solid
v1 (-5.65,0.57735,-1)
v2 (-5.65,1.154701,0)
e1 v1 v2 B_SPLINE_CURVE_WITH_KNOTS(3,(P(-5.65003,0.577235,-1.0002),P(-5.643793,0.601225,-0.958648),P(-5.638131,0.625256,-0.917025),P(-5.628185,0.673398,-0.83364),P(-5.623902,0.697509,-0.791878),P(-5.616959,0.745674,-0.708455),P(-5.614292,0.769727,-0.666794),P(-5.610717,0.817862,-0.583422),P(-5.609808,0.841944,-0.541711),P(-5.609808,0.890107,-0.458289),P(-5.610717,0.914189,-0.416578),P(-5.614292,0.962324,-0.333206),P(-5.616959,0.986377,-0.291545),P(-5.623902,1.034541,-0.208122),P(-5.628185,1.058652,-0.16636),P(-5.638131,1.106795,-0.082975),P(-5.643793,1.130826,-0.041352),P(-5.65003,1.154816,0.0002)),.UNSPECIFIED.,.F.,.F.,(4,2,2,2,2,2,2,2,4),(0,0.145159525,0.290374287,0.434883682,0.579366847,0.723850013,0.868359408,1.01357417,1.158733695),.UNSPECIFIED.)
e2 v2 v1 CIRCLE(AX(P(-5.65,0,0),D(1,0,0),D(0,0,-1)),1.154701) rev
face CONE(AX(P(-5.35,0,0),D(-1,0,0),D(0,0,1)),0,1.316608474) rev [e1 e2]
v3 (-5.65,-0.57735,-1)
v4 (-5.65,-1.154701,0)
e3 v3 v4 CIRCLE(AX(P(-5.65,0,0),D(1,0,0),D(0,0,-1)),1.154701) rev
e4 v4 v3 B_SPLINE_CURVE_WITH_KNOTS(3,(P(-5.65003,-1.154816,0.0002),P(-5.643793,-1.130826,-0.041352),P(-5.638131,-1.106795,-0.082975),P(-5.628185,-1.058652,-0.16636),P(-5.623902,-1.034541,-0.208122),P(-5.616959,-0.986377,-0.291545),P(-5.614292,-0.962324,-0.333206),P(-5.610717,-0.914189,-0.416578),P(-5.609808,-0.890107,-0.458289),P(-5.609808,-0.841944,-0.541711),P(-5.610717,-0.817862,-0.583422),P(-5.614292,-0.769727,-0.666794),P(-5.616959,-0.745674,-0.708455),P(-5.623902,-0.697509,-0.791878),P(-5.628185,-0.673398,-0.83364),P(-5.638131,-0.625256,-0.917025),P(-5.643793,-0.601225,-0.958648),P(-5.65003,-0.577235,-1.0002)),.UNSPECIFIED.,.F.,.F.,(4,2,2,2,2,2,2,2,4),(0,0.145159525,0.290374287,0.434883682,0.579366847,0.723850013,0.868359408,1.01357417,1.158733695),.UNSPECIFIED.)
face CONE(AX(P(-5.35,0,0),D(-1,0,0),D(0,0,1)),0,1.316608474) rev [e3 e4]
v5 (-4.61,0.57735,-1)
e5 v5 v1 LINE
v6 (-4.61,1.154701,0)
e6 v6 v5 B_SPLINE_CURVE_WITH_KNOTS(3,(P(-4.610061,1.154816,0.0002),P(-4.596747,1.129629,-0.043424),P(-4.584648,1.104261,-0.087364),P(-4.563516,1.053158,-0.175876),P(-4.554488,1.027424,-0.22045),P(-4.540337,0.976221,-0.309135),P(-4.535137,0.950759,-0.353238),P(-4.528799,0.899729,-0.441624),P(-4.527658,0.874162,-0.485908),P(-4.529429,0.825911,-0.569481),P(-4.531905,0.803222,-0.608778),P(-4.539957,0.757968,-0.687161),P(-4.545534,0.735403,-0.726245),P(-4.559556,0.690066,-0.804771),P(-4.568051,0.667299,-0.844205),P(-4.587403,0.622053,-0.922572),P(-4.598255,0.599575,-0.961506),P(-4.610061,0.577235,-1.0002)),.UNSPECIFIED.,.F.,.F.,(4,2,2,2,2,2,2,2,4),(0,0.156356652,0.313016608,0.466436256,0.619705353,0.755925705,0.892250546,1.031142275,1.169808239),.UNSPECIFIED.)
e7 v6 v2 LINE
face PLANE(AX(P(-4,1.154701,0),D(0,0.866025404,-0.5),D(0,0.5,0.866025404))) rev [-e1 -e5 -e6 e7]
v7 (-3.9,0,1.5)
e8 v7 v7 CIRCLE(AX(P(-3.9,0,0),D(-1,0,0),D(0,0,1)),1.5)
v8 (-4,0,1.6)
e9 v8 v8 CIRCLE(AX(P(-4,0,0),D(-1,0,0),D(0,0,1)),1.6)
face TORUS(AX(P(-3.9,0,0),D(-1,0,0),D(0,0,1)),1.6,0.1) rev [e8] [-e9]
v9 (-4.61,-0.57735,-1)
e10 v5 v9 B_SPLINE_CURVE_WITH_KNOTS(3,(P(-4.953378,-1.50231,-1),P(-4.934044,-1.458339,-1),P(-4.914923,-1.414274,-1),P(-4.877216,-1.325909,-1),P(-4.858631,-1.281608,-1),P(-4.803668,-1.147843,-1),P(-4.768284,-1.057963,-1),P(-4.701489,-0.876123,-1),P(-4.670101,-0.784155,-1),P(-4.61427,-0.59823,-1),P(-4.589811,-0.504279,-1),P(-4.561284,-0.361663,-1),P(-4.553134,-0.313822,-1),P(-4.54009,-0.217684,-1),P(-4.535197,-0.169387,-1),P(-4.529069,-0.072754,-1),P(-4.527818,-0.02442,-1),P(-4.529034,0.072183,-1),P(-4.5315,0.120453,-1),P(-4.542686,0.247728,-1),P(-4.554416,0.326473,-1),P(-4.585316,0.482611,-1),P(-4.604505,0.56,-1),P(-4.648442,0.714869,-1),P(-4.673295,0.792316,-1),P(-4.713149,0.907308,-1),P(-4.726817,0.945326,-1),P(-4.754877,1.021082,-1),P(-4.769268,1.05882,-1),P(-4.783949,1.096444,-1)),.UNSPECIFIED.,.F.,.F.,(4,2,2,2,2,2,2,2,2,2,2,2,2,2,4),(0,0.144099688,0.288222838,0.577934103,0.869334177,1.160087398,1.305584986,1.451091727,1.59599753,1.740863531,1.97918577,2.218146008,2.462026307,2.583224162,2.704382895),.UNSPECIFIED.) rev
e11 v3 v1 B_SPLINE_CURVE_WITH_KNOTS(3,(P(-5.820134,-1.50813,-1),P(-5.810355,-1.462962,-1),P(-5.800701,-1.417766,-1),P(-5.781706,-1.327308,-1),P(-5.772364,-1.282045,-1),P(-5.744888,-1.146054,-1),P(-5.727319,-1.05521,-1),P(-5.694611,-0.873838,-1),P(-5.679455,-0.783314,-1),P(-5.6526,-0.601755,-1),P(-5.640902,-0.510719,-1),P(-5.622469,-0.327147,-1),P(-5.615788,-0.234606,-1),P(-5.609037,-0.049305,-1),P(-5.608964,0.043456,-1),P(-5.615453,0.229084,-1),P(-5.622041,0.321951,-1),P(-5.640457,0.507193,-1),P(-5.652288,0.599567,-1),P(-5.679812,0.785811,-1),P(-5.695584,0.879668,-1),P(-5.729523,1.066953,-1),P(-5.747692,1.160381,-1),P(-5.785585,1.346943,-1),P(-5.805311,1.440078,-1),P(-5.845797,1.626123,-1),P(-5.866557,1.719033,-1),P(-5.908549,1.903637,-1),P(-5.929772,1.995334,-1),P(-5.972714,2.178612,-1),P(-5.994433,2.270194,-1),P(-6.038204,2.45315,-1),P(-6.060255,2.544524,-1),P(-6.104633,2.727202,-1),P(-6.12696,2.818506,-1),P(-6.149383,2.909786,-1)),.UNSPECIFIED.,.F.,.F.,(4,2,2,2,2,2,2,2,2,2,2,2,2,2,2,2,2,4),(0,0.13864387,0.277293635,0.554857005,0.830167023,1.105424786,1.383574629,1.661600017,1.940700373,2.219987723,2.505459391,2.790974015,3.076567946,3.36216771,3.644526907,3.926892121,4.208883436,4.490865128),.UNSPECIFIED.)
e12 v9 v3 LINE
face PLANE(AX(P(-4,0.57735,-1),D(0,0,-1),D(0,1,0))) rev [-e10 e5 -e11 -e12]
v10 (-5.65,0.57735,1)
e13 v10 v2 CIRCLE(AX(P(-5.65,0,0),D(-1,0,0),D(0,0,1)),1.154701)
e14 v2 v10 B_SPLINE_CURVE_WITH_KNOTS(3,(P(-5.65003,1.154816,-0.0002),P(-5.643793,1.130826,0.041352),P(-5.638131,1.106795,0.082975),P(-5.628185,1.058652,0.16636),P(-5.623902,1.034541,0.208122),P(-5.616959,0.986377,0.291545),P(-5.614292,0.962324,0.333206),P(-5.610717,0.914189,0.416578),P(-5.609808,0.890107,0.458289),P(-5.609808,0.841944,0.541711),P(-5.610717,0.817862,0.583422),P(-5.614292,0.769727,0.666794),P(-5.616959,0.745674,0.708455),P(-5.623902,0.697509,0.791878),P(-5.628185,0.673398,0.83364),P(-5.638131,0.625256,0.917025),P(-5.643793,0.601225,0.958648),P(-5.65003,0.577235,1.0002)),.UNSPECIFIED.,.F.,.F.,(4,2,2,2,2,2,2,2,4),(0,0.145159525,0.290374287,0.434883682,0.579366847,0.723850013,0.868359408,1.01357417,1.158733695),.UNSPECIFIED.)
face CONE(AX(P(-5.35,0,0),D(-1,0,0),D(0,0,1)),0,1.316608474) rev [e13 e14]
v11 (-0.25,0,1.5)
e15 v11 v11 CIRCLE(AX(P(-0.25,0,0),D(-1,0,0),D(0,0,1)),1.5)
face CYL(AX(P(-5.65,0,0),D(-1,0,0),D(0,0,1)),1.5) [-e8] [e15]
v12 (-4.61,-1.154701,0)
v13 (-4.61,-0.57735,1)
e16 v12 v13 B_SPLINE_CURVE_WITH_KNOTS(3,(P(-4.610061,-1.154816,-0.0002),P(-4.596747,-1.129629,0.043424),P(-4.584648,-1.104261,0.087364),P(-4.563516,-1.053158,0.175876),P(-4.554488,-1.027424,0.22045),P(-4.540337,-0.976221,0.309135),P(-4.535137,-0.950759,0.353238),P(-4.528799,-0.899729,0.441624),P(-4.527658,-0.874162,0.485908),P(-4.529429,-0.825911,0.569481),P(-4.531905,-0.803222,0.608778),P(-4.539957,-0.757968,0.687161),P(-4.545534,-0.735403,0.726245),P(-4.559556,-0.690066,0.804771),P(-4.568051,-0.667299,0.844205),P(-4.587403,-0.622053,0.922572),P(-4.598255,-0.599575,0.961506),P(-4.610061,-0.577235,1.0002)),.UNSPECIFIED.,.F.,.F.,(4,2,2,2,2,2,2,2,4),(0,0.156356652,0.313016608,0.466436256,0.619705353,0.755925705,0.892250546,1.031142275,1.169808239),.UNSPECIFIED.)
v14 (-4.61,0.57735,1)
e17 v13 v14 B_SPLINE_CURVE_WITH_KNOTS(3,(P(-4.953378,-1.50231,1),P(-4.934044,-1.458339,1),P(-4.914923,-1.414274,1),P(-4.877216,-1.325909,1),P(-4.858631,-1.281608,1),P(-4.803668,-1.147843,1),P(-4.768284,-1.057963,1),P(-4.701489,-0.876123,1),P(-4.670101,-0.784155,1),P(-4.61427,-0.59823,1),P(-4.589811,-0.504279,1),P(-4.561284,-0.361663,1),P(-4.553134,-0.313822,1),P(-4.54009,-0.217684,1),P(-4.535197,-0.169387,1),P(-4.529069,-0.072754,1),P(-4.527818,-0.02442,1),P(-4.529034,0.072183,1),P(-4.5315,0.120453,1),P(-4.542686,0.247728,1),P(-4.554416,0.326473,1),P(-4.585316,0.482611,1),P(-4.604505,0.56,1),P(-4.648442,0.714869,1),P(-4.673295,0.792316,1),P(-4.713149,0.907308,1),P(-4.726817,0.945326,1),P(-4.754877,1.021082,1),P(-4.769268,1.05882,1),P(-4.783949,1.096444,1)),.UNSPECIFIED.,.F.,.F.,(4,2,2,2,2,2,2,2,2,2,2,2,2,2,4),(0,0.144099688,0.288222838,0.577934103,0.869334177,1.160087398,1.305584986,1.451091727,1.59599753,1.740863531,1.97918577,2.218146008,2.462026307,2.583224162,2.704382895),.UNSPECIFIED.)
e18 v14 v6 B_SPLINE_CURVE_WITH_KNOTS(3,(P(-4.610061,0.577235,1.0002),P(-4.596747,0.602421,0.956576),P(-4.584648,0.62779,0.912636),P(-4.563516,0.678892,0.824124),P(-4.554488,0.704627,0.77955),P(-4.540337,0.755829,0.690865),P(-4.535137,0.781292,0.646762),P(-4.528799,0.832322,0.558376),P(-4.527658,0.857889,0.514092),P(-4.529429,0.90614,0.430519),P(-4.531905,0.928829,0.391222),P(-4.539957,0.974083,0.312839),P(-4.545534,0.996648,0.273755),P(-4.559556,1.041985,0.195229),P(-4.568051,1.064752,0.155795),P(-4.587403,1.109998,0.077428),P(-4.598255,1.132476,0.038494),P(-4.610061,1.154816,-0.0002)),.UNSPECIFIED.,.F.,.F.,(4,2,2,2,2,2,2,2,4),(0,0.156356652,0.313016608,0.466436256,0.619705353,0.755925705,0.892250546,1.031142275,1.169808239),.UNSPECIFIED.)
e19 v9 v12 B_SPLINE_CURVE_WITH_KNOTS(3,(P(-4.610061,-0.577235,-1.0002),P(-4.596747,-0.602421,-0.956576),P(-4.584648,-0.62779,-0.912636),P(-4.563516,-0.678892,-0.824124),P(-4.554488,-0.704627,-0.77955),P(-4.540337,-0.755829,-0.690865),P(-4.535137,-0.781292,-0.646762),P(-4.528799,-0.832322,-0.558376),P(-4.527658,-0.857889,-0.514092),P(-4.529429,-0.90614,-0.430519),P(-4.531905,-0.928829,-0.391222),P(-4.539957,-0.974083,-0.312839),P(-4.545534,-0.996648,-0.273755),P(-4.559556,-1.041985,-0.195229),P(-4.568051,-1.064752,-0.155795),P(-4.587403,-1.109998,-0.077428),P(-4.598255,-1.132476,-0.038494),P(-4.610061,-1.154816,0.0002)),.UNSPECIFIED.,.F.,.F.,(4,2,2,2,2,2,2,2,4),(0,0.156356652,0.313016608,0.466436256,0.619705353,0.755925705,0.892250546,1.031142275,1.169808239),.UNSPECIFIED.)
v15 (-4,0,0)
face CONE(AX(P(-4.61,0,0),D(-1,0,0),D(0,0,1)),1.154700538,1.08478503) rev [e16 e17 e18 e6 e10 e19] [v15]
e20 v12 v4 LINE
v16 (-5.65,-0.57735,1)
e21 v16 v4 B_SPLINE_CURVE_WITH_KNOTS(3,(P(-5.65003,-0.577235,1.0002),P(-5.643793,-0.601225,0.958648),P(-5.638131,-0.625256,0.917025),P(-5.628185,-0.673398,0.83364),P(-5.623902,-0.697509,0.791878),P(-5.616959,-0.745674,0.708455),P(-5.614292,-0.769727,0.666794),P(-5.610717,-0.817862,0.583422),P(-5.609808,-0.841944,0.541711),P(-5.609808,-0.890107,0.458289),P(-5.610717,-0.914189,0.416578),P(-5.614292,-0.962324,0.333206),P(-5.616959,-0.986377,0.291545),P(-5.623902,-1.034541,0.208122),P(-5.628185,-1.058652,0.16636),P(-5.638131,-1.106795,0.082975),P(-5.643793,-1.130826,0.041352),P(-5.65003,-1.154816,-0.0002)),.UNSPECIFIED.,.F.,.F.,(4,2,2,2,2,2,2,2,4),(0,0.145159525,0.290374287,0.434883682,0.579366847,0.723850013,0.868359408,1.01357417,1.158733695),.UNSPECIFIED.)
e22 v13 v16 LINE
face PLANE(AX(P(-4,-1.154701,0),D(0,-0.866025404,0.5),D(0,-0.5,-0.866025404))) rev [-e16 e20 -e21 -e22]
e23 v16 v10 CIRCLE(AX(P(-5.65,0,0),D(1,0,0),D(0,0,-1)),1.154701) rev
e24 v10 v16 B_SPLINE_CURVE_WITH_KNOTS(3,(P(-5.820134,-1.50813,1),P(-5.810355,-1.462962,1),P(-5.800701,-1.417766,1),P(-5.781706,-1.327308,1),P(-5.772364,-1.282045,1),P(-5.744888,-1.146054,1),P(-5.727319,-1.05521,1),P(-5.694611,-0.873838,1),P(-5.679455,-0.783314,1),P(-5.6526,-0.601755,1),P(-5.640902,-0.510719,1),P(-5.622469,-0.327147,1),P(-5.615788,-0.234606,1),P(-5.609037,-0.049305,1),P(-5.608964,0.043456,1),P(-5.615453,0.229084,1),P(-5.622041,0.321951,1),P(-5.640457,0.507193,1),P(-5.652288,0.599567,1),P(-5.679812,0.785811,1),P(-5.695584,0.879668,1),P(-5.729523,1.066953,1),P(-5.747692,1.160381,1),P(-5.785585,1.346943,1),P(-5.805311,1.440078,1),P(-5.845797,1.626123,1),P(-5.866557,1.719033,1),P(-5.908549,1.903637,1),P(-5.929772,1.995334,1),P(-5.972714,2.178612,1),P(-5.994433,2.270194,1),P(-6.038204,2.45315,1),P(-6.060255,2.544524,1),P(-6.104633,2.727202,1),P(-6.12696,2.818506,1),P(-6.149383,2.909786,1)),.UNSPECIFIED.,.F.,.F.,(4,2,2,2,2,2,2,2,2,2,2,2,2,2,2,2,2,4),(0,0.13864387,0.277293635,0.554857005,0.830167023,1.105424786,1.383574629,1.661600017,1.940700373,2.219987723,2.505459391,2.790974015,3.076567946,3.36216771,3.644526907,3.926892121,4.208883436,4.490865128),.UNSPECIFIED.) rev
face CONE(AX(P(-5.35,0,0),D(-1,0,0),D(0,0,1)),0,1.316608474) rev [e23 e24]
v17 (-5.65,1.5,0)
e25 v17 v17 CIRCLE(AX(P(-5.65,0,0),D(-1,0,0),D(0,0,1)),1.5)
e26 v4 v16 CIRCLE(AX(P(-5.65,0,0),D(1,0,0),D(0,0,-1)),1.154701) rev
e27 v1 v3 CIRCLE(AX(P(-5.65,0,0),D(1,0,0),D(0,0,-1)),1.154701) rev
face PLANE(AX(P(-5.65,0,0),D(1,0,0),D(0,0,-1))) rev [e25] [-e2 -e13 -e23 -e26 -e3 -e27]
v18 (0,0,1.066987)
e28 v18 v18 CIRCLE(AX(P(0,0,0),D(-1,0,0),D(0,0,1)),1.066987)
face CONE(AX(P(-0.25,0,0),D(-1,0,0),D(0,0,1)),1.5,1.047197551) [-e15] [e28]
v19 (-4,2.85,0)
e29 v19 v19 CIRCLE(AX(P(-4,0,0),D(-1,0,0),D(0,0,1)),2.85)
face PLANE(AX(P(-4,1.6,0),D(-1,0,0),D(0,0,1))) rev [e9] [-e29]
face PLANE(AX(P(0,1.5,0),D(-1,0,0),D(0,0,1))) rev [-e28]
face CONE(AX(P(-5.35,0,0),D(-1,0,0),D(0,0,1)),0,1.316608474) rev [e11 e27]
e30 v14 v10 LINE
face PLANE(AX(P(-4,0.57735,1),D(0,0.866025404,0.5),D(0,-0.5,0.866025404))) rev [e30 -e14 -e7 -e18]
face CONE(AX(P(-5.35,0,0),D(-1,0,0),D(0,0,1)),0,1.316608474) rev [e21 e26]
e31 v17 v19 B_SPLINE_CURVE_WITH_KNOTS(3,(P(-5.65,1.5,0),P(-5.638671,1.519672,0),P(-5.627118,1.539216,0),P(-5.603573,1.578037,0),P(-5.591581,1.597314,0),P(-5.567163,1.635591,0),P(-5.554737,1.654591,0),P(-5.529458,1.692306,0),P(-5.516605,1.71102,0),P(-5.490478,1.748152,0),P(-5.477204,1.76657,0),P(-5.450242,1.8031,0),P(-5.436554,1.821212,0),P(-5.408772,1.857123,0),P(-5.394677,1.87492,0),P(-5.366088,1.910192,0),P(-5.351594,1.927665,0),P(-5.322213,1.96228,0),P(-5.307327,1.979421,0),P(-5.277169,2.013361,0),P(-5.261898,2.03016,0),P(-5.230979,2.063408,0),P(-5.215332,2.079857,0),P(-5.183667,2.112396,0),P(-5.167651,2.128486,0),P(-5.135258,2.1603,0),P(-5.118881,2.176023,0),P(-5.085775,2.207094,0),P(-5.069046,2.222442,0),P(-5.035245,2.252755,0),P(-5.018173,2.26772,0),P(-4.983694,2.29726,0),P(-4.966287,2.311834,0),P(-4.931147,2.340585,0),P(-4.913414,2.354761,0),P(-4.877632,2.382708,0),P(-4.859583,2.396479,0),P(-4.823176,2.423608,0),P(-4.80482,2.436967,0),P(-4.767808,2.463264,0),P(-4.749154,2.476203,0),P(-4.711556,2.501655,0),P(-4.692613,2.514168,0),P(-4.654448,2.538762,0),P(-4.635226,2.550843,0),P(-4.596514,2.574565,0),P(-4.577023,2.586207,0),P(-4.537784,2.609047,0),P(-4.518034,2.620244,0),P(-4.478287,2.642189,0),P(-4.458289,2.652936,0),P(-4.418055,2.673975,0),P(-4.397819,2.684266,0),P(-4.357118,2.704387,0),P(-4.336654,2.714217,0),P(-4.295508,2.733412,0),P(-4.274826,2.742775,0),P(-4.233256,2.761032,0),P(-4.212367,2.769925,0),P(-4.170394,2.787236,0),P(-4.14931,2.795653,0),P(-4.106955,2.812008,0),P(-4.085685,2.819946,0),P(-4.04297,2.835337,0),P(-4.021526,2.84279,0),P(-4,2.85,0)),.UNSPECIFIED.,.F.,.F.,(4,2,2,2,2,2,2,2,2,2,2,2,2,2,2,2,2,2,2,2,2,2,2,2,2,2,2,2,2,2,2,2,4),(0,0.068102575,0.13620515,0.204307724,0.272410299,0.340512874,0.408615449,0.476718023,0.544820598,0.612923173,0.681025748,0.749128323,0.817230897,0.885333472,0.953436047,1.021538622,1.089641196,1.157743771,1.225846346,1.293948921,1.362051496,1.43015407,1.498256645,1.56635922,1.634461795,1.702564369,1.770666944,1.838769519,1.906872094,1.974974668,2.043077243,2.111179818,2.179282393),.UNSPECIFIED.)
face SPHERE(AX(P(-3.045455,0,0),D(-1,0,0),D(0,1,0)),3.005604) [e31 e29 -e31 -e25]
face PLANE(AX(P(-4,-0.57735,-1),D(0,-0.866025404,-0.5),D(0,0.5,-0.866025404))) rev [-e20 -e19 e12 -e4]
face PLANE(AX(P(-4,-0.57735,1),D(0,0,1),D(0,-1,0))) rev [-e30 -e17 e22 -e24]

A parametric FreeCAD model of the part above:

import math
import FreeCAD as App
import Part
import Sketcher
from FreeCAD import Vector
Q = App.Units.Quantity


def add_polygon(sketch, points):
    """Adds a closed chain of lines whose ends are joined by coincident constraints."""
    first, n = sketch.GeometryCount, len(points)
    for a, b in zip(points, points[1:] + points[:1]):
        sketch.addGeometry(Part.LineSegment(App.Vector(*a, 0), App.Vector(*b, 0)), False)
    for i in range(n):
        sketch.addConstraint(Sketcher.Constraint("Coincident", first + i, 2, first + (i + 1) % n, 1))

doc = App.newDocument("Part")
params = doc.addObject("Spreadsheet::Sheet", "Params")
for row, (alias, value) in enumerate([
    ("sketch1_radius", "0.1 mm"),
    ("sketch1_width", "3.9 mm"),
    ("sketch1_height", "1.5 mm"),
    ("sketch1_width2", "5.65 mm"),
    ("sketch1_height2", "1.25 mm"),
    ("revolution_angle", "360 deg"),
    ("pocket1_length", "1.65 mm"),
    ("sketch3_width", "0.3 mm"),
    ("sketch3_width2", "0.91 mm"),
    ("revolution2_angle", "360 deg"),
    ("sketch4_width", "0.3 mm"),
    ("groove_angle", "360 deg"),
    ("sketch5_width", "0.5 mm"),
    ("groove2_angle", "360 deg"),
], start=1):
    params.set(f"A{row}", alias)
    params.set(f"B{row}", "=" + value)
    params.setAlias(f"B{row}", alias)

body = doc.addObject("PartDesign::Body", "Body")

# Sketch on XY plane
sketch1 = body.newObject("Sketcher::SketchObject", "Sketch")
sketch1.AttachmentSupport = (doc.getObject("XY_Plane"), [""])
sketch1.MapMode = "FlatFace"
sketch1.addGeometry([
    Part.LineSegment(Vector(0, 1.5, 0), Vector(-3.9, 1.5, 0)),  # 0
    Part.ArcOfCircle(Part.Circle(Vector(-3.9, 1.6, 0), Vector(0, 0, 1), 0.1), math.radians(180), math.radians(270)),  # 1
    Part.LineSegment(Vector(-4, 1.6, 0), Vector(-4, 2.85, 0)),  # 2
    Part.ArcOfCircle(Part.Circle(Vector(-3.05, 0, 0), Vector(0, 0, 1), 3.01), math.radians(109), math.radians(150)),  # 3
    Part.LineSegment(Vector(-5.65, 1.5, 0), Vector(-5.65, 0, 0)),  # 4
    Part.LineSegment(Vector(-5.65, 0, 0), Vector(0, 0, 0)),  # 5
    Part.LineSegment(Vector(0, 0, 0), Vector(0, 1.5, 0)),  # 6
], False)
sketch1.addConstraint([
    Sketcher.Constraint("Tangent", 0, 2, 1, 2),
    Sketcher.Constraint("Tangent", 1, 1, 2, 1),
    Sketcher.Constraint("Coincident", 2, 2, 3, 1),
    Sketcher.Constraint("Coincident", 3, 2, 4, 1),
    Sketcher.Constraint("Coincident", 4, 2, 5, 1),
    Sketcher.Constraint("Coincident", 5, 2, 6, 1),
    Sketcher.Constraint("Coincident", 6, 2, 0, 1),
    Sketcher.Constraint("Horizontal", 0),
    Sketcher.Constraint("Vertical", 2),
    Sketcher.Constraint("Vertical", 4),
    Sketcher.Constraint("Horizontal", 5),
    Sketcher.Constraint("Vertical", 6),
    Sketcher.Constraint("Coincident", 5, 2, -1, 1),
    Sketcher.Constraint("PointOnObject", 3, 3, -1),
    Sketcher.Constraint("Horizontal", 0, 2, 3, 2),
    Sketcher.Constraint("Radius", 1, 0.1),
    Sketcher.Constraint("DistanceX", 0, 2, 0, 1, 3.9),
    Sketcher.Constraint("DistanceY", 4, 2, 4, 1, 1.5),
    Sketcher.Constraint("DistanceX", 5, 1, 5, 2, 5.65),
    Sketcher.Constraint("DistanceY", 2, 1, 2, 2, 1.25),
])
sketch1.setExpression("Constraints[15]", "Params.sketch1_radius")
sketch1.setExpression("Constraints[16]", "Params.sketch1_width")
sketch1.setExpression("Constraints[17]", "Params.sketch1_height")
sketch1.setExpression("Constraints[18]", "Params.sketch1_width2")
sketch1.setExpression("Constraints[19]", "Params.sketch1_height2")
revolution = body.newObject("PartDesign::Revolution", "Revolution")
revolution.Profile = sketch1
revolution.ReferenceAxis = (sketch1, ["H_Axis"])
revolution.setExpression("Angle", "Params.revolution_angle")

# Sketch on YZ plane
sketch2 = body.newObject("Sketcher::SketchObject", "Sketch001")
sketch2.AttachmentSupport = (doc.getObject("YZ_Plane"), [""])
sketch2.MapMode = "FlatFace"
sketch2.AttachmentOffset = App.Placement(Vector(0, 0, -5.65), App.Rotation())
add_polygon(sketch2, [(1.2, 0), (0.6, -1), (-0.6, -1), (-1.2, 0), (-0.6, 1), (0.6, 1)])  # lines 0-5
sketch2.addConstraint([
    Sketcher.Constraint("Horizontal", 1),
    Sketcher.Constraint("Horizontal", 4),
    Sketcher.Constraint("Symmetric", 0, 2, 3, 2, -1, 1),
    Sketcher.Constraint("Symmetric", 2, 2, 5, 2, -1, 1),
    Sketcher.Constraint("PointOnObject", 2, 2, -1),
    Sketcher.Constraint("Parallel", 2, 5),
    Sketcher.Constraint("Vertical", 1, 2, 3, 2),
    Sketcher.Constraint("Angle", 0, Q("-120 deg")),
    Sketcher.Constraint("DistanceY", 0, 2, -1, 1, 1.0),
    Sketcher.Constraint("DistanceX", 1, 2, 1, 1, 1.154701),
])
pocket1 = body.newObject("PartDesign::Pocket", "Pocket")
pocket1.Profile = sketch2
pocket1.setExpression("Length", "Params.pocket1_length")
pocket1.Reversed = True

# Sketch on XY plane
sketch3 = body.newObject("Sketcher::SketchObject", "Sketch002")
sketch3.AttachmentSupport = (doc.getObject("XY_Plane"), [""])
sketch3.MapMode = "FlatFace"
add_polygon(sketch3, [(-4.61, 1.15), (-4, 0), (-3.7, 0), (-3.7, 1.15)])  # lines 0-3
sketch3.addConstraint([
    Sketcher.Constraint("Horizontal", 1),
    Sketcher.Constraint("Vertical", 2),
    Sketcher.Constraint("Horizontal", 3),
    Sketcher.Constraint("PointOnObject", 0, 2, -1),
    Sketcher.Constraint("DistanceX", 1, 1, 1, 2, 0.3),
    Sketcher.Constraint("DistanceX", 0, 2, -1, 1, 4.0),
    Sketcher.Constraint("DistanceX", 3, 2, 3, 1, 0.91),
    Sketcher.Constraint("DistanceY", 2, 1, 2, 2, 1.154701),
])
sketch3.setExpression("Constraints[8]", "Params.sketch3_width")
sketch3.setExpression("Constraints[10]", "Params.sketch3_width2")
revolution2 = body.newObject("PartDesign::Revolution", "Revolution001")
revolution2.Profile = sketch3
revolution2.ReferenceAxis = (sketch3, ["H_Axis"])
revolution2.setExpression("Angle", "Params.revolution2_angle")

# Sketch on XY plane
sketch4 = body.newObject("Sketcher::SketchObject", "Sketch003")
sketch4.AttachmentSupport = (doc.getObject("XY_Plane"), [""])
sketch4.MapMode = "FlatFace"
add_polygon(sketch4, [(-5.35, 0), (-5.65, 1.15), (-5.65, 0)])  # lines 0-2
sketch4.addConstraint([
    Sketcher.Constraint("Vertical", 1),
    Sketcher.Constraint("Horizontal", 2),
    Sketcher.Constraint("PointOnObject", 1, 2, -1),
    Sketcher.Constraint("DistanceX", 2, 1, 2, 2, 0.3),
    Sketcher.Constraint("DistanceX", 0, 2, -1, 1, 5.65),
    Sketcher.Constraint("DistanceY", 1, 2, 1, 1, 1.154701),
])
sketch4.setExpression("Constraints[6]", "Params.sketch4_width")
groove = body.newObject("PartDesign::Groove", "Groove")
groove.Profile = sketch4
groove.ReferenceAxis = (sketch4, ["H_Axis"])
groove.setExpression("Angle", "Params.groove_angle")

# Sketch on XY plane
sketch5 = body.newObject("Sketcher::SketchObject", "Sketch004")
sketch5.AttachmentSupport = (doc.getObject("XY_Plane"), [""])
sketch5.MapMode = "FlatFace"
add_polygon(sketch5, [(-0.2, 1.5), (0, 1.1), (0.2, 1.5)])  # lines 0-2
sketch5.addConstraint([
    Sketcher.Constraint("Horizontal", 2),
    Sketcher.Constraint("PointOnObject", 0, 2, -2),
    Sketcher.Constraint("Equal", 0, 1),
    Sketcher.Constraint("Angle", 0, Q("-60 deg")),
    Sketcher.Constraint("DistanceX", 2, 2, 2, 1, 0.5),
    Sketcher.Constraint("DistanceY", -1, 1, 1, 2, 1.5),
])
sketch5.setExpression("Constraints[7]", "Params.sketch5_width")
groove2 = body.newObject("PartDesign::Groove", "Groove001")
groove2.Profile = sketch5
groove2.ReferenceAxis = (sketch5, ["H_Axis"])
groove2.setExpression("Angle", "Params.groove2_angle")

doc.recompute()
